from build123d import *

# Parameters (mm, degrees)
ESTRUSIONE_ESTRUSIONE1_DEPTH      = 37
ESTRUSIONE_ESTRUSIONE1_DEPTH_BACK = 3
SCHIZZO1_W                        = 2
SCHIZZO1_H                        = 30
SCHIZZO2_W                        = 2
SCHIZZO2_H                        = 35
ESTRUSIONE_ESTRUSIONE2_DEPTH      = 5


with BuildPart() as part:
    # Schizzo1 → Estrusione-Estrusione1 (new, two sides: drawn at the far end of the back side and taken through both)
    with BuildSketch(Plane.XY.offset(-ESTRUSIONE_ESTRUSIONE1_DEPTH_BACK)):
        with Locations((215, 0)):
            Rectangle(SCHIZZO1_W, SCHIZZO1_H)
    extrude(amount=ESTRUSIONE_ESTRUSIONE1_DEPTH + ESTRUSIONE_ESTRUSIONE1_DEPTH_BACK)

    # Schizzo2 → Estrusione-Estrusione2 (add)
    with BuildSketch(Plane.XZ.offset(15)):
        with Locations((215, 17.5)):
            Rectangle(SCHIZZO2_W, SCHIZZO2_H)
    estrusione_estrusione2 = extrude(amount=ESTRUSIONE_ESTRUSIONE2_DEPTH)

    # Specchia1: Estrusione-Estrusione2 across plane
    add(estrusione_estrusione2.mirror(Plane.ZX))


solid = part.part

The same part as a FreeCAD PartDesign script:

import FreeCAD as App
import Part
import Sketcher
from FreeCAD import Vector


def add_polygon(sketch, points):
    """Adds a closed chain of lines whose ends are joined by coincident constraints."""
    first, n = sketch.GeometryCount, len(points)
    for a, b in zip(points, points[1:] + points[:1]):
        sketch.addGeometry(Part.LineSegment(App.Vector(*a, 0), App.Vector(*b, 0)), False)
    for i in range(n):
        sketch.addConstraint(Sketcher.Constraint("Coincident", first + i, 2, first + (i + 1) % n, 1))

doc = App.newDocument("Part")
body = doc.addObject("PartDesign::Body", "Body")

# Sketch on XY plane
sketch1 = body.newObject("Sketcher::SketchObject", "Sketch")
sketch1.AttachmentSupport = (doc.getObject("XY_Plane"), [""])
sketch1.MapMode = "FlatFace"
add_polygon(sketch1, [(214, 15), (214, -15), (216, -15), (216, 15)])  # lines 0-3
sketch1.addConstraint([
    Sketcher.Constraint("Vertical", 0),
    Sketcher.Constraint("Horizontal", 1),
    Sketcher.Constraint("Vertical", 2),
    Sketcher.Constraint("Horizontal", 3),
    Sketcher.Constraint("DistanceX", 1, 1, 1, 2, 2.0),
    Sketcher.Constraint("DistanceY", 0, 2, 0, 1, 30.0),
    Sketcher.Constraint("DistanceX", -1, 1, 0, 2, 214.0),
    Sketcher.Constraint("DistanceY", 0, 2, -1, 1, 15.0),
])
pad1 = body.newObject("PartDesign::Pad", "Pad")
pad1.Profile = sketch1
pad1.Type = "TwoLengths"
pad1.Length = 37
pad1.Length2 = 3

# Sketch on XZ plane
sketch2 = body.newObject("Sketcher::SketchObject", "Sketch001")
sketch2.AttachmentSupport = (doc.getObject("XZ_Plane"), [""])
sketch2.MapMode = "FlatFace"
sketch2.AttachmentOffset = App.Placement(Vector(0, 0, 15), App.Rotation())
add_polygon(sketch2, [(214, 35), (214, 0), (216, 0), (216, 35)])  # lines 0-3
sketch2.addConstraint([
    Sketcher.Constraint("Vertical", 0),
    Sketcher.Constraint("Horizontal", 1),
    Sketcher.Constraint("Vertical", 2),
    Sketcher.Constraint("Horizontal", 3),
    Sketcher.Constraint("PointOnObject", 0, 2, -1),
    Sketcher.Constraint("DistanceX", 1, 1, 1, 2, 2.0),
    Sketcher.Constraint("DistanceY", 0, 2, 0, 1, 35.0),
    Sketcher.Constraint("DistanceX", -1, 1, 0, 2, 214.0),
])
pad2 = body.newObject("PartDesign::Pad", "Pad001")
pad2.Profile = sketch2
pad2.Length = 5
doc.recompute()

mirrored = body.newObject("PartDesign::Mirrored", "Mirrored")
mirrored.Originals = [pad2]
mirrored.MirrorPlane = (doc.getObject("XZ_Plane"), [""])
body.Tip = mirrored

doc.recompute()
